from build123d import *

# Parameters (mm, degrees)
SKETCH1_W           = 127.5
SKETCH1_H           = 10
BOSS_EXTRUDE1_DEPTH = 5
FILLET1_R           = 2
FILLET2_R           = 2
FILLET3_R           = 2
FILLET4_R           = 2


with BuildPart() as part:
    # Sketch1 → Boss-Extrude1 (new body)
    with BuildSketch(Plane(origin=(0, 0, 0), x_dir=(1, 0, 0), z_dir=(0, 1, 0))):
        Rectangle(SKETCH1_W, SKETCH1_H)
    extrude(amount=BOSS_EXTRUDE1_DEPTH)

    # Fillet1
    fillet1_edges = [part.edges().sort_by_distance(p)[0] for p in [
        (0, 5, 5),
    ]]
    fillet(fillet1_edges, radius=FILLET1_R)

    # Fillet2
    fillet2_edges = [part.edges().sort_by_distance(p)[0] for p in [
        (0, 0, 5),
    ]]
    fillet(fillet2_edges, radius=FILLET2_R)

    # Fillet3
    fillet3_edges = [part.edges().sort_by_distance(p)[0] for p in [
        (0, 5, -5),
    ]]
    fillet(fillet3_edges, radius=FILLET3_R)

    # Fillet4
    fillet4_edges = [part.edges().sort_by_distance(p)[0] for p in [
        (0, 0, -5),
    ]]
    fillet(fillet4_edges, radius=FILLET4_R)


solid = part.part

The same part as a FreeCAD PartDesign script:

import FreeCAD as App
import Part
import Sketcher

V = App.Vector
Q = App.Units.Quantity


def edges_at(feature, points):
    """Names of the edges that pass closest to the given points."""
    edges = feature.Shape.Edges
    near = lambda p: min(range(len(edges)), key=lambda i: edges[i].distToShape(Part.Vertex(*p))[0])
    return sorted({f"Edge{near(p) + 1}" for p in points})


def add_polygon(sketch, points):
    """Adds a closed chain of lines whose ends are joined by coincident constraints."""
    first, n = sketch.GeometryCount, len(points)
    for a, b in zip(points, points[1:] + points[:1]):
        sketch.addGeometry(Part.LineSegment(App.Vector(*a, 0), App.Vector(*b, 0)), False)
    for i in range(n):
        sketch.addConstraint(Sketcher.Constraint("Coincident", first + i, 2, first + (i + 1) % n, 1))

doc = App.newDocument("Part")
body = doc.addObject("PartDesign::Body", "Body")

sketch1 = body.newObject("Sketcher::SketchObject", "Sketch")
sketch1.AttachmentSupport = (doc.getObject("XZ_Plane"), [""])
sketch1.MapMode = "FlatFace"
add_polygon(sketch1, [(-64, -5), (-64, 5), (64, 5), (64, -5)])
sketch1.addConstraint([
    Sketcher.Constraint("Vertical", 0),
    Sketcher.Constraint("Horizontal", 1),
    Sketcher.Constraint("Vertical", 2),
    Sketcher.Constraint("Horizontal", 3),
    Sketcher.Constraint("Symmetric", 0, 2, 2, 2, -1, 1),
    Sketcher.Constraint("DistanceY", 0, 1, 0, 2, Q("10 mm")),
    Sketcher.Constraint("DistanceX", 1, 1, 1, 2, Q("127.5 mm")),
])
pad1 = body.newObject("PartDesign::Pad", "Pad")
pad1.Profile = sketch1
pad1.Length = 5
pad1.Reversed = True
doc.recompute()

fillet = body.newObject("PartDesign::Fillet", "Fillet")
fillet.Base = (pad1, edges_at(pad1, [(0, 5, 5)]))
fillet.Radius = 2
doc.recompute()

fillet2 = body.newObject("PartDesign::Fillet", "Fillet001")
fillet2.Base = (fillet, edges_at(fillet, [(0, 0, 5)]))
fillet2.Radius = 2
doc.recompute()

fillet3 = body.newObject("PartDesign::Fillet", "Fillet002")
fillet3.Base = (fillet2, edges_at(fillet2, [(0, 5, -5)]))
fillet3.Radius = 2
doc.recompute()

fillet4 = body.newObject("PartDesign::Fillet", "Fillet003")
fillet4.Base = (fillet3, edges_at(fillet3, [(0, 0, -5)]))
fillet4.Radius = 2

doc.recompute()
